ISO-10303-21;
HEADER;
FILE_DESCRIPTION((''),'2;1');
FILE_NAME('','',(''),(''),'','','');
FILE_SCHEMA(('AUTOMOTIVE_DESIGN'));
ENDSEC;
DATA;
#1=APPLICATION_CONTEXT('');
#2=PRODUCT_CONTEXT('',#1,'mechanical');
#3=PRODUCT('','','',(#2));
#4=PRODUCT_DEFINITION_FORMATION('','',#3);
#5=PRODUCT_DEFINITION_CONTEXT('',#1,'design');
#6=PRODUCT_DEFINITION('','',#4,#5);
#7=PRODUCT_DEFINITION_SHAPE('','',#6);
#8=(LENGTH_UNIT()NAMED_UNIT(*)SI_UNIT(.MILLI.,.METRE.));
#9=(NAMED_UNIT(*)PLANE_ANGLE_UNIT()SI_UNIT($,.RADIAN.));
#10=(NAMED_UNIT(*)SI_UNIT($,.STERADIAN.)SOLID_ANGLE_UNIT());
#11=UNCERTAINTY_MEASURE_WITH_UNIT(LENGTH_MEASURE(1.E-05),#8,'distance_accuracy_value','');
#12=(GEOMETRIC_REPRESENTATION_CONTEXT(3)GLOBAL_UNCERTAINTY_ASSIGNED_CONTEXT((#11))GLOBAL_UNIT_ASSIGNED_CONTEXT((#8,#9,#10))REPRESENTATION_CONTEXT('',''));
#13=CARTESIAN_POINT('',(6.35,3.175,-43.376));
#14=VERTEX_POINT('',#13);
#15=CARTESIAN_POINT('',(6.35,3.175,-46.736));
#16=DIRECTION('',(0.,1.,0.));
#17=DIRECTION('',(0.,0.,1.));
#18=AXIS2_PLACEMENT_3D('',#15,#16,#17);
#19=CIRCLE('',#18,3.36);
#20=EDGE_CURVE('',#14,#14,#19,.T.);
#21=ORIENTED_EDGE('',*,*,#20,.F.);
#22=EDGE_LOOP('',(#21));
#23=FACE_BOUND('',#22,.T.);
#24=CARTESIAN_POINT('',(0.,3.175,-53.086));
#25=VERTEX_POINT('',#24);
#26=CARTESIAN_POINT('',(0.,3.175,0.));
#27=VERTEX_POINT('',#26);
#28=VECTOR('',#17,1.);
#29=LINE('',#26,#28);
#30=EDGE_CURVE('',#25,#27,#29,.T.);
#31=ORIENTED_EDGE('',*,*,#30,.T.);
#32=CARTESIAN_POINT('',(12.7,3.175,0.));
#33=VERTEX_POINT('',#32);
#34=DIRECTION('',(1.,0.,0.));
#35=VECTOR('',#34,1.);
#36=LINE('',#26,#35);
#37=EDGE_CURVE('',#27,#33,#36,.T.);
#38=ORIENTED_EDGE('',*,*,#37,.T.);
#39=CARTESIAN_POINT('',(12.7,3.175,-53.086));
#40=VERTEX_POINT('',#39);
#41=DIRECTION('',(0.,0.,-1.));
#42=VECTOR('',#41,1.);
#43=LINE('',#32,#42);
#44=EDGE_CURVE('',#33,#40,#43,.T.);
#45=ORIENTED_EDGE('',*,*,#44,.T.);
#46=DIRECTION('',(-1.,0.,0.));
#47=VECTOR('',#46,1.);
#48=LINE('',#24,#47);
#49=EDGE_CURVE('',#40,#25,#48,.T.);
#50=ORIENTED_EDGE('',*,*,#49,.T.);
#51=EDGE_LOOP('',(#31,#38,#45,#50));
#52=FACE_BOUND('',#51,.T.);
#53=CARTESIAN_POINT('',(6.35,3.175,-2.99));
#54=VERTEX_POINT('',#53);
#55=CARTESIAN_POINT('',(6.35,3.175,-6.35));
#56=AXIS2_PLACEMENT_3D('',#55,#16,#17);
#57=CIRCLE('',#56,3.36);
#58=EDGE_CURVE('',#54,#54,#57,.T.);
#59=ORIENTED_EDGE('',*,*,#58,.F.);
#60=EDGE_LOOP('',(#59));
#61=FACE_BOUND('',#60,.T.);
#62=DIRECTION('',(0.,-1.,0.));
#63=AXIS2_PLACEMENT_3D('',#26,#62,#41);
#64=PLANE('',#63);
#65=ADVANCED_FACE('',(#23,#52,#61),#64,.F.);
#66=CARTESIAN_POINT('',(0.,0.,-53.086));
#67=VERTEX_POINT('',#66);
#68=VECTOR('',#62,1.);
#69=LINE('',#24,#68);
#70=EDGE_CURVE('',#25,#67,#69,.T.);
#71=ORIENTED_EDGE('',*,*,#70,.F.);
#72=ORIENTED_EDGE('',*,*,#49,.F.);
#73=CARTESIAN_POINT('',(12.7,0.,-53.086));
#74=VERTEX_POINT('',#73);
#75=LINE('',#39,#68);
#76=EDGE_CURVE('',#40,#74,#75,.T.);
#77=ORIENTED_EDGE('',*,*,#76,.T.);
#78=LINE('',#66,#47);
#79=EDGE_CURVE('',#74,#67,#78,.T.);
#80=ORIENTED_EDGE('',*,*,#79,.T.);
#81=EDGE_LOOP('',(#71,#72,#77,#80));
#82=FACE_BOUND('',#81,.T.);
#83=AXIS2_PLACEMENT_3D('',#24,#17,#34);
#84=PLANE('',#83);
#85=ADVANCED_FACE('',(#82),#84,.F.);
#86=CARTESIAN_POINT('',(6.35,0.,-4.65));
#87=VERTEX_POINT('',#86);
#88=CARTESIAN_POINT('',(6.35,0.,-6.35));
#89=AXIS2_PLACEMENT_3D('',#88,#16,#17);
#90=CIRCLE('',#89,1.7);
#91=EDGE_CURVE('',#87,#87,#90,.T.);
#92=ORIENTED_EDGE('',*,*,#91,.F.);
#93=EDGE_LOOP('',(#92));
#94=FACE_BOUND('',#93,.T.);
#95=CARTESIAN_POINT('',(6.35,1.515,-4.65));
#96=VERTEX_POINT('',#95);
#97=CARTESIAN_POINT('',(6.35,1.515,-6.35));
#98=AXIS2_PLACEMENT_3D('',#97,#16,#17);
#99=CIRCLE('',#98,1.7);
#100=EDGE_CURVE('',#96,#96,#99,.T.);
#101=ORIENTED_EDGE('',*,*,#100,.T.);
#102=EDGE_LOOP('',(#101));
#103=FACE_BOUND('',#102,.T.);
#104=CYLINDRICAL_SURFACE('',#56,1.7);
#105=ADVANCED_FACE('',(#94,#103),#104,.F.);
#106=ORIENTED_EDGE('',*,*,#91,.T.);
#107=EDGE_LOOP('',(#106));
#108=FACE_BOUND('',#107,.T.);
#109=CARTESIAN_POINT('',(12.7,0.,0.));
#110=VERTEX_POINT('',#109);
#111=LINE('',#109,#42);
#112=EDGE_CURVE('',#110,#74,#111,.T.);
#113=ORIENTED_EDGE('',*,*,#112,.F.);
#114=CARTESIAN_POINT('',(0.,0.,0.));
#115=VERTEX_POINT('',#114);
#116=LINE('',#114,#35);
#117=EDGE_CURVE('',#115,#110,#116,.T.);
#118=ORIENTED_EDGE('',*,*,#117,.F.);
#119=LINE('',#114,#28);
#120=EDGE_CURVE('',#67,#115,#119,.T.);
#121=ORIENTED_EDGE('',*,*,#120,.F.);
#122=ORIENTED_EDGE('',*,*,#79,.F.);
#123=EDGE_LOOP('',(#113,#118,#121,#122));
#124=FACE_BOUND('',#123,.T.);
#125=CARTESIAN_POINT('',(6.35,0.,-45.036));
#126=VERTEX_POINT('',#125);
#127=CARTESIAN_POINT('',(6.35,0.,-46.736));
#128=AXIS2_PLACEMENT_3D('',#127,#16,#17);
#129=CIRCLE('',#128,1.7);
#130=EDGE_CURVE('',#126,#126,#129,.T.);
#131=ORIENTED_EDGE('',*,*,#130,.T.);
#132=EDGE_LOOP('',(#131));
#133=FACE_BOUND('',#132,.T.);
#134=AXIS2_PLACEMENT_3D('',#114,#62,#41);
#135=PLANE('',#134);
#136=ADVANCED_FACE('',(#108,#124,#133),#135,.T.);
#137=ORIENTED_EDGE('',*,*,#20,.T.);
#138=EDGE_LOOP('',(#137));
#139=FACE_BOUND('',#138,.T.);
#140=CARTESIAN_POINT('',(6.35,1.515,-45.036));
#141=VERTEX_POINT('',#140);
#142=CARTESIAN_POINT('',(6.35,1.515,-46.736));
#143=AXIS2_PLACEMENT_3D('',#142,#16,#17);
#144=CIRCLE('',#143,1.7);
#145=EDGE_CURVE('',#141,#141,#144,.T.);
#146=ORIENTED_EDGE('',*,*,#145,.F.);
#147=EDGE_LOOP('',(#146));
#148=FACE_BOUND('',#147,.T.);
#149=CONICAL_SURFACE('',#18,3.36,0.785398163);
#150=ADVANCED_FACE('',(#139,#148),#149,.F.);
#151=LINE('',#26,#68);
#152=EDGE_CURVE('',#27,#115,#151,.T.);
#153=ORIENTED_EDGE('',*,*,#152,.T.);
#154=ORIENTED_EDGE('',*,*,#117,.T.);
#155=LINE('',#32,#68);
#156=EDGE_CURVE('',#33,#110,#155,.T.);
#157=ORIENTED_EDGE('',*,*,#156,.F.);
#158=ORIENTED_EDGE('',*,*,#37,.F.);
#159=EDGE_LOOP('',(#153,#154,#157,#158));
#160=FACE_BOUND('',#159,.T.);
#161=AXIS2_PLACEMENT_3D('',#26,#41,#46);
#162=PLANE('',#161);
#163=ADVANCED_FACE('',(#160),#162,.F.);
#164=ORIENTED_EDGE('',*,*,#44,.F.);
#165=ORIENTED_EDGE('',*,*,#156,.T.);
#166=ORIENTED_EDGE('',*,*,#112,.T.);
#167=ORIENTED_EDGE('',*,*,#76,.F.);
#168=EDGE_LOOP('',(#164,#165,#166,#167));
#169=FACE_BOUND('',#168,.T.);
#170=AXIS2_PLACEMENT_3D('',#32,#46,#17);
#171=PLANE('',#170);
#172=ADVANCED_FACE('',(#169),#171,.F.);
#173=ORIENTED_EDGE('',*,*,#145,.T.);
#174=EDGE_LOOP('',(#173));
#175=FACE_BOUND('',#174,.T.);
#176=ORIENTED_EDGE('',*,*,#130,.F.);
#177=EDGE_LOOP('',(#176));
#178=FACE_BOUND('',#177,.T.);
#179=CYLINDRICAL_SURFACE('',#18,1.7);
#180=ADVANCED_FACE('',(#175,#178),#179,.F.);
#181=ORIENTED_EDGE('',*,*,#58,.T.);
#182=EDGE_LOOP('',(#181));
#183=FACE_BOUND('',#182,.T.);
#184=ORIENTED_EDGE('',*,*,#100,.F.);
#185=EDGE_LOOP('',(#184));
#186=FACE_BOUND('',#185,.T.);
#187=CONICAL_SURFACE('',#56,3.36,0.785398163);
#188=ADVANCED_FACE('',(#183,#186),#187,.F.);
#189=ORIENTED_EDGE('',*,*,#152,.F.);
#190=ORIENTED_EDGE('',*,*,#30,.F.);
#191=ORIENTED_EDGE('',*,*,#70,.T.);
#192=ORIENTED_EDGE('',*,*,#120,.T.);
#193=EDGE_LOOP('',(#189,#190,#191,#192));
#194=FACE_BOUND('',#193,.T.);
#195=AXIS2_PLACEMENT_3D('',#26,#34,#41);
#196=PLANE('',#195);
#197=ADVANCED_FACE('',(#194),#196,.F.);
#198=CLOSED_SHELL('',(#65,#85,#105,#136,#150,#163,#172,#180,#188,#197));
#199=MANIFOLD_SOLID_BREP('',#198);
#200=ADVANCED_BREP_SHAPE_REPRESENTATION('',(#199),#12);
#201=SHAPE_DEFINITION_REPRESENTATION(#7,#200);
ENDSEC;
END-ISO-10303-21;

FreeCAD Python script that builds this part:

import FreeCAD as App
import Part
import Sketcher

V = App.Vector
Q = App.Units.Quantity


def add_polygon(sketch, points):
    """Adds a closed chain of lines whose ends are joined by coincident constraints."""
    first, n = sketch.GeometryCount, len(points)
    for a, b in zip(points, points[1:] + points[:1]):
        sketch.addGeometry(Part.LineSegment(App.Vector(*a, 0), App.Vector(*b, 0)), False)
    for i in range(n):
        sketch.addConstraint(Sketcher.Constraint("Coincident", first + i, 2, first + (i + 1) % n, 1))

doc = App.newDocument("Part")
body = doc.addObject("PartDesign::Body", "Body")

# Sketch on XZ plane
sketch1 = doc.addObject("Sketcher::SketchObject", "Sketch")
body.addObject(sketch1)
sketch1.AttachmentSupport = (doc.XZ_Plane, [""])
sketch1.MapMode = "FlatFace"
add_polygon(sketch1, [(0, -53.086), (0, 0), (12.7, 0), (12.7, -53.086)])  # lines 0-3
sketch1.addConstraint(Sketcher.Constraint("Vertical", 0))
sketch1.addConstraint(Sketcher.Constraint("Horizontal", 1))
sketch1.addConstraint(Sketcher.Constraint("Vertical", 2))
sketch1.addConstraint(Sketcher.Constraint("Horizontal", 3))
sketch1.addConstraint(Sketcher.Constraint("Coincident", 0, 2, -1, 1))
sketch1.addConstraint(Sketcher.Constraint("DistanceX", 1, 1, 1, 2, Q("0.5 in")))
sketch1.addConstraint(Sketcher.Constraint("DistanceY", 0, 1, 0, 2, Q("2.09 in")))
pad1 = doc.addObject("PartDesign::Pad", "Pad")
body.addObject(pad1)
pad1.Profile = sketch1
pad1.Length = Q("0.125 in")
pad1.Reversed = True

# Sketch on YZ plane
sketch2 = doc.addObject("Sketcher::SketchObject", "Sketch001")
body.addObject(sketch2)
sketch2.AttachmentSupport = (doc.YZ_Plane, [""])
sketch2.MapMode = "FlatFace"
sketch2.AttachmentOffset = App.Placement(V(0, 0, 0.25 * 25.4), App.Rotation())
add_polygon(sketch2, [(0, -6.35), (3.175, -6.35), (3.175, -2.99), (1.515, -4.65), (0, -4.65)])  # lines 0-4
sketch2.addGeometry(Part.LineSegment(V(3.175, -6.35, 0), V(0, -6.35, 0)), True)  # axis
sketch2.addConstraint(Sketcher.Constraint("Horizontal", 0))
sketch2.addConstraint(Sketcher.Constraint("Vertical", 1))
sketch2.addConstraint(Sketcher.Constraint("Horizontal", 3))
sketch2.addConstraint(Sketcher.Constraint("Vertical", 4))
sketch2.addConstraint(Sketcher.Constraint("Horizontal", 5))
sketch2.addConstraint(Sketcher.Constraint("Coincident", 5, 1, 0, 2))
sketch2.addConstraint(Sketcher.Constraint("PointOnObject", 3, 2, -2))
sketch2.addConstraint(Sketcher.Constraint("PointOnObject", 5, 2, -2))
sketch2.addConstraint(Sketcher.Constraint("Angle", 2, Q("-135 deg")))
sketch2.addConstraint(Sketcher.Constraint("DistanceX", 0, 1, 0, 2, Q("0.125 in")))
sketch2.addConstraint(Sketcher.Constraint("DistanceY", 0, 2, -1, 1, Q("0.25 in")))
sketch2.addConstraint(Sketcher.Constraint("DistanceX", 3, 2, 3, 1, 1.515))
sketch2.addConstraint(Sketcher.Constraint("DistanceY", 1, 1, 1, 2, 3.36))
groove = doc.addObject("PartDesign::Groove", "Groove")
body.addObject(groove)
groove.Profile = sketch2
groove.ReferenceAxis = (sketch2, ["Axis0"])
groove.Angle = 360
doc.recompute()

linearpattern = doc.addObject("PartDesign::LinearPattern", "LinearPattern")
body.addObject(linearpattern)
linearpattern.Originals = [groove]
linearpattern.Direction = (doc.Z_Axis, [""])
linearpattern.Mode = "offset"
linearpattern.Offset = Q("1.59 in")
linearpattern.Occurrences = 2
linearpattern.Reversed = True
body.Tip = linearpattern

doc.recompute()
